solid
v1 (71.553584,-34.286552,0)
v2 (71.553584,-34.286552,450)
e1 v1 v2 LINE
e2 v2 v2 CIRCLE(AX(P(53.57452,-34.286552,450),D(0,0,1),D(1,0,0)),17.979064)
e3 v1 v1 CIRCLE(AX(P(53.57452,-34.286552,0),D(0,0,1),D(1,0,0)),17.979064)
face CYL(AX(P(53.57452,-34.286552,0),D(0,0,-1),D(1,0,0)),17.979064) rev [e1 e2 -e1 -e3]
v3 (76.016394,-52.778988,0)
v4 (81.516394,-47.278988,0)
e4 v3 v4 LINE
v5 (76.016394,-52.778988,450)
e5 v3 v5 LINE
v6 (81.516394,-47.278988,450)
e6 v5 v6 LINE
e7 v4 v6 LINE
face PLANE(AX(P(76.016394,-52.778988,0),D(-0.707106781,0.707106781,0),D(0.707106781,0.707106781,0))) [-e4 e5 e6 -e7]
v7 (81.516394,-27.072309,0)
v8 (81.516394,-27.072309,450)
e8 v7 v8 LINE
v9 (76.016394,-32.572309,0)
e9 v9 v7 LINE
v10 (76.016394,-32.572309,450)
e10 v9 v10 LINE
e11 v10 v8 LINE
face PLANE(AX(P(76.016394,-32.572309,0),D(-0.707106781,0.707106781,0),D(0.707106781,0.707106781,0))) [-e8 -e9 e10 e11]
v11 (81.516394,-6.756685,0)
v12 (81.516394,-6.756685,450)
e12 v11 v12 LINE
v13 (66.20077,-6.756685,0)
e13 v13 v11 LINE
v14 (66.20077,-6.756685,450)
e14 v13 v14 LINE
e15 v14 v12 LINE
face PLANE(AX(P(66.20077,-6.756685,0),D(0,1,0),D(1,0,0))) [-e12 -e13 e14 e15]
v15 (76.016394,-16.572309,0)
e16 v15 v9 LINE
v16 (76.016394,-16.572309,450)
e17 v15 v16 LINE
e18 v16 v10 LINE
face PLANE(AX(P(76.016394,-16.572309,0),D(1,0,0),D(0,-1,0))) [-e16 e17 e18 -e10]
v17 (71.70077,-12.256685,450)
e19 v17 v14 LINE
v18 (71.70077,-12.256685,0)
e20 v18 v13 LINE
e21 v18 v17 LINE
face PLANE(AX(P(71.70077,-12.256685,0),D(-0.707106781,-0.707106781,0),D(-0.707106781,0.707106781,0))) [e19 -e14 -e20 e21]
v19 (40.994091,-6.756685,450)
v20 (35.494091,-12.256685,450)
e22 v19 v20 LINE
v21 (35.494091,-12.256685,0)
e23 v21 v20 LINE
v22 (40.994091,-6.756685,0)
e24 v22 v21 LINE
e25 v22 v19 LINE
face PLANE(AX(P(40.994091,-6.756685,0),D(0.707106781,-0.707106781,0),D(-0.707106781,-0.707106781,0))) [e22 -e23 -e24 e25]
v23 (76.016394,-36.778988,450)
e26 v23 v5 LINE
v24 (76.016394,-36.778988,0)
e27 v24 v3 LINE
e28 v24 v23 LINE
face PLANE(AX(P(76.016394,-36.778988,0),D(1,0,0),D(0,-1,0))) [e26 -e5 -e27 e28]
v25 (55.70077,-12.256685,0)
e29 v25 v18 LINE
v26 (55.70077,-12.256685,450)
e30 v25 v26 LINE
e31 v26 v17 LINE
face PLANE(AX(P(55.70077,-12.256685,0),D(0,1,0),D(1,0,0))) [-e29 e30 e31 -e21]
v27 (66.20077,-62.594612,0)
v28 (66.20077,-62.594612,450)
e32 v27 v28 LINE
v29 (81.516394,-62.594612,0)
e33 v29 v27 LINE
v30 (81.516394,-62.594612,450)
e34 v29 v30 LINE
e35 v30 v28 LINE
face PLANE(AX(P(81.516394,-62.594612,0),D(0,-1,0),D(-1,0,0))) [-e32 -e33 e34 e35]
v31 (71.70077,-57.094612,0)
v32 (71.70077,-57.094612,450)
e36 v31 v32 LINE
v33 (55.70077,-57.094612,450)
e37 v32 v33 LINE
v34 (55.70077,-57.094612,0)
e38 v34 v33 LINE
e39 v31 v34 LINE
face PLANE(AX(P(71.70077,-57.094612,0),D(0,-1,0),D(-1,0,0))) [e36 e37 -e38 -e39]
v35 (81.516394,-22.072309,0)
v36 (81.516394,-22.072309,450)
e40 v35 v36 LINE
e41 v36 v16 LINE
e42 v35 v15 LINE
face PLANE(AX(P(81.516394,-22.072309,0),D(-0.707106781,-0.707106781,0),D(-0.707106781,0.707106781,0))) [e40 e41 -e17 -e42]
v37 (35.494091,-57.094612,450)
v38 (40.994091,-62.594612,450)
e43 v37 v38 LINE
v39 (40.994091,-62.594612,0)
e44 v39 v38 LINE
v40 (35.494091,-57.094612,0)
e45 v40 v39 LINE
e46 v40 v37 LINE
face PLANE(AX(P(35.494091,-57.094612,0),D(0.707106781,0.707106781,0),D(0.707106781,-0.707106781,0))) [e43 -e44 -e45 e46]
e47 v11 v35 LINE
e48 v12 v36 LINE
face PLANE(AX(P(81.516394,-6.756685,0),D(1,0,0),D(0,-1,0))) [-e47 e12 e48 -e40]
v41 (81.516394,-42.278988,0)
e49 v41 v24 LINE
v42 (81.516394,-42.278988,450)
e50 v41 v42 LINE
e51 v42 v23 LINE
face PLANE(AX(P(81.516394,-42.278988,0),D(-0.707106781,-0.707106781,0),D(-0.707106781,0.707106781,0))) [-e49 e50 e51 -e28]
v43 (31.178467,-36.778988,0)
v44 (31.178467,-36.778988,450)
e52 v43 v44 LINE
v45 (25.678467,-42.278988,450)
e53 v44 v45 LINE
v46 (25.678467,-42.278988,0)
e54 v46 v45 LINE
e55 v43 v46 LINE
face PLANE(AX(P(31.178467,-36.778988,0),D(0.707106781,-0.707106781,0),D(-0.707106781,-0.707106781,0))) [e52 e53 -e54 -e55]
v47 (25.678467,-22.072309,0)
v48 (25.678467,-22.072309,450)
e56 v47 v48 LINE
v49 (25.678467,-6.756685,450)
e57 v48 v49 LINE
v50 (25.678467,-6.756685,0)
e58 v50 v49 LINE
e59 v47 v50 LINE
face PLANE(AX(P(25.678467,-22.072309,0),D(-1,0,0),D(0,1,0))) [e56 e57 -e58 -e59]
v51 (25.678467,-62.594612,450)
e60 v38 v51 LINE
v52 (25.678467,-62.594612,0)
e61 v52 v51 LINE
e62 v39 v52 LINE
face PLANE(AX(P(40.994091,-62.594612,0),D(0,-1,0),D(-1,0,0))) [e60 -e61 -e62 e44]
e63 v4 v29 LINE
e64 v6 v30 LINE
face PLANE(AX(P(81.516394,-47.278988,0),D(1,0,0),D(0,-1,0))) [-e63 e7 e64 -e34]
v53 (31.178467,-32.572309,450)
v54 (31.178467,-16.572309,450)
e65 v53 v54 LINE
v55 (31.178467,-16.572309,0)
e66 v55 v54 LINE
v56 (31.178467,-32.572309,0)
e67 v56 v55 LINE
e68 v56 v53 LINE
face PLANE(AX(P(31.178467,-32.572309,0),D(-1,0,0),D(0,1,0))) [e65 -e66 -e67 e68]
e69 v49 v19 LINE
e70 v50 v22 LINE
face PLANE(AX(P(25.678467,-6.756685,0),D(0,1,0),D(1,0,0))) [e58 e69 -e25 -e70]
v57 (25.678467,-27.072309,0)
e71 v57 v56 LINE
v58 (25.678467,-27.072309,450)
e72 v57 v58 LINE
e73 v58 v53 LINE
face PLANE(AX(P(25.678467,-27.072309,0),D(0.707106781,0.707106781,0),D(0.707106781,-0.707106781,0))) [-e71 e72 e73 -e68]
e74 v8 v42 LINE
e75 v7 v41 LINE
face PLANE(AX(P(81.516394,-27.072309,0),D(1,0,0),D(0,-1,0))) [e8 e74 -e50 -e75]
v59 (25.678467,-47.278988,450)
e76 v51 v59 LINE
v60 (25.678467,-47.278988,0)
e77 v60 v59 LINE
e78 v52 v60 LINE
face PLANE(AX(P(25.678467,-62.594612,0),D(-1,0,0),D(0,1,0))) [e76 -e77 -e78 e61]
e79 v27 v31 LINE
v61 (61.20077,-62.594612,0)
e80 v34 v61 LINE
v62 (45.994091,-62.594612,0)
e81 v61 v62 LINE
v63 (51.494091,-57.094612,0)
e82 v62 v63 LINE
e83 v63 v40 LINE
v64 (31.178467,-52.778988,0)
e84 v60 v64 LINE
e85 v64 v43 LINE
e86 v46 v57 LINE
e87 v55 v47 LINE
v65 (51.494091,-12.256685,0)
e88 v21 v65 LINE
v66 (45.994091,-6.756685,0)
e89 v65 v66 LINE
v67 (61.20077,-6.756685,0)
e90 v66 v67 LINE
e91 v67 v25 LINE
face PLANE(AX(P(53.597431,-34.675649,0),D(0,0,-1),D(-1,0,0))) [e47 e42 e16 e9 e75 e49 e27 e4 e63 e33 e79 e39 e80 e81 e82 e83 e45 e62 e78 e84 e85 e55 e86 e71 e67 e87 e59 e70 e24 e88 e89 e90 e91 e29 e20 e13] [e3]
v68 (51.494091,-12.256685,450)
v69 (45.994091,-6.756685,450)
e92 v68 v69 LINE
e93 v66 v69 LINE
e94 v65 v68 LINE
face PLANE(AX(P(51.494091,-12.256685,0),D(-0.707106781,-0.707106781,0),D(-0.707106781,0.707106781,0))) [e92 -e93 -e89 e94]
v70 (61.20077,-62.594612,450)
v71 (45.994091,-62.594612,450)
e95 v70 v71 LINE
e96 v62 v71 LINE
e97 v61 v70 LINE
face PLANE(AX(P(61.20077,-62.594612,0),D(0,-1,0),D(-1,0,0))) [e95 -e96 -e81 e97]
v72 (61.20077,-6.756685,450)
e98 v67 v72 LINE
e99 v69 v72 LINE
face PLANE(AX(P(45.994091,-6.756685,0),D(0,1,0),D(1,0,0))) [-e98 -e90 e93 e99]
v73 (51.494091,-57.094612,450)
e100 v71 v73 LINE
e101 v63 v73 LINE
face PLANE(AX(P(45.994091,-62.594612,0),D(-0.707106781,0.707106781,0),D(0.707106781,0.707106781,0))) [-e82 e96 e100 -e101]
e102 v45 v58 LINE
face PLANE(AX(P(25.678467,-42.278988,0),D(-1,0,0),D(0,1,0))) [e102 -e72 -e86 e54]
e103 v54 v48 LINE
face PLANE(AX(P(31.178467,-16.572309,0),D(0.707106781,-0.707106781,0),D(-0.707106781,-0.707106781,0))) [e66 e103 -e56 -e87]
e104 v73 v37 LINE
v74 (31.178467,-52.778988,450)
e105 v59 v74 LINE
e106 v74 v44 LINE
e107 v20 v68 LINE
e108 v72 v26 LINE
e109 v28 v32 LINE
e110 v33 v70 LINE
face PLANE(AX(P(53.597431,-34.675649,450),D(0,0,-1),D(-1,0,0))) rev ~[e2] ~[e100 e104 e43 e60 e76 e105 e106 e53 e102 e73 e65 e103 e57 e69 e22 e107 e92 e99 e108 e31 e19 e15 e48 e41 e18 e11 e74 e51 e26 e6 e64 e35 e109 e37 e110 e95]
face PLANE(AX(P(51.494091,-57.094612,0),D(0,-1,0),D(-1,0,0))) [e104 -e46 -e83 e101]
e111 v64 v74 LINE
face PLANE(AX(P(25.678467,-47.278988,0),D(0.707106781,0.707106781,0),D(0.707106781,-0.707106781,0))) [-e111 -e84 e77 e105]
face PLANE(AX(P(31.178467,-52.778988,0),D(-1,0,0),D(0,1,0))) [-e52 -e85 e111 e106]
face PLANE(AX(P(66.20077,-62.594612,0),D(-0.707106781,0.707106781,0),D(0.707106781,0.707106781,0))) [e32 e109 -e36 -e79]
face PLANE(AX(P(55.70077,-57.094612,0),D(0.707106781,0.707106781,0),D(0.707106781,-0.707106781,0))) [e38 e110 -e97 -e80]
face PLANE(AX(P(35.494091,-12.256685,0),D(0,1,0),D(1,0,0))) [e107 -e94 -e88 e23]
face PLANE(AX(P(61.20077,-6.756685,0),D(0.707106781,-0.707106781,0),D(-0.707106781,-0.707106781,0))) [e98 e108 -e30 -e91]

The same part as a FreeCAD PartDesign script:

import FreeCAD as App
import Part
import Sketcher
from FreeCAD import Vector

doc = App.newDocument("Part")
body = doc.addObject("PartDesign::Body", "Body")

# Sketch on XY plane
sketch1 = doc.addObject("Sketcher::SketchObject", "Sketch")
body.addObject(sketch1)
sketch1.AttachmentSupport = (doc.XY_Plane, [""])
sketch1.MapMode = "FlatFace"
sketch1.addGeometry(Part.LineSegment(Vector(82, -63, 0), Vector(82, -47, 0)), False)
sketch1.addGeometry(Part.LineSegment(Vector(82, -47, 0), Vector(76, -53, 0)), False)
sketch1.addGeometry(Part.LineSegment(Vector(76, -53, 0), Vector(76, -37, 0)), False)
sketch1.addGeometry(Part.LineSegment(Vector(76, -37, 0), Vector(82, -42, 0)), False)
sketch1.addGeometry(Part.LineSegment(Vector(82, -42, 0), Vector(82, -27, 0)), False)
sketch1.addGeometry(Part.LineSegment(Vector(82, -27, 0), Vector(76, -33, 0)), False)
sketch1.addGeometry(Part.LineSegment(Vector(76, -33, 0), Vector(76, -17, 0)), False)
sketch1.addGeometry(Part.LineSegment(Vector(76, -17, 0), Vector(82, -22, 0)), False)
sketch1.addGeometry(Part.LineSegment(Vector(82, -22, 0), Vector(82, -7, 0)), False)
sketch1.addGeometry(Part.LineSegment(Vector(82, -7, 0), Vector(66, -7, 0)), False)
sketch1.addGeometry(Part.LineSegment(Vector(66, -7, 0), Vector(72, -12, 0)), False)
sketch1.addGeometry(Part.LineSegment(Vector(72, -12, 0), Vector(56, -12, 0)), False)
sketch1.addGeometry(Part.LineSegment(Vector(56, -12, 0), Vector(61, -7, 0)), False)
sketch1.addGeometry(Part.LineSegment(Vector(61, -7, 0), Vector(46, -7, 0)), False)
sketch1.addGeometry(Part.LineSegment(Vector(46, -7, 0), Vector(51, -12, 0)), False)
sketch1.addGeometry(Part.LineSegment(Vector(51, -12, 0), Vector(35, -12, 0)), False)
sketch1.addGeometry(Part.LineSegment(Vector(35, -12, 0), Vector(41, -7, 0)), False)
sketch1.addGeometry(Part.LineSegment(Vector(41, -7, 0), Vector(26, -7, 0)), False)
sketch1.addGeometry(Part.LineSegment(Vector(26, -7, 0), Vector(26, -22, 0)), False)
sketch1.addGeometry(Part.LineSegment(Vector(26, -22, 0), Vector(31, -17, 0)), False)
sketch1.addGeometry(Part.LineSegment(Vector(31, -17, 0), Vector(31, -33, 0)), False)
sketch1.addGeometry(Part.LineSegment(Vector(31, -33, 0), Vector(26, -27, 0)), False)
sketch1.addGeometry(Part.LineSegment(Vector(26, -27, 0), Vector(26, -42, 0)), False)
sketch1.addGeometry(Part.LineSegment(Vector(26, -42, 0), Vector(31, -37, 0)), False)
sketch1.addGeometry(Part.LineSegment(Vector(31, -37, 0), Vector(31, -53, 0)), False)
sketch1.addGeometry(Part.LineSegment(Vector(31, -53, 0), Vector(26, -47, 0)), False)
sketch1.addGeometry(Part.LineSegment(Vector(26, -47, 0), Vector(26, -63, 0)), False)
sketch1.addGeometry(Part.LineSegment(Vector(26, -63, 0), Vector(41, -63, 0)), False)
sketch1.addGeometry(Part.LineSegment(Vector(41, -63, 0), Vector(35, -57, 0)), False)
sketch1.addGeometry(Part.LineSegment(Vector(35, -57, 0), Vector(51, -57, 0)), False)
sketch1.addGeometry(Part.LineSegment(Vector(51, -57, 0), Vector(46, -63, 0)), False)
sketch1.addGeometry(Part.LineSegment(Vector(46, -63, 0), Vector(61, -63, 0)), False)
sketch1.addGeometry(Part.LineSegment(Vector(61, -63, 0), Vector(56, -57, 0)), False)
sketch1.addGeometry(Part.LineSegment(Vector(56, -57, 0), Vector(72, -57, 0)), False)
sketch1.addGeometry(Part.LineSegment(Vector(72, -57, 0), Vector(66, -63, 0)), False)
sketch1.addGeometry(Part.LineSegment(Vector(66, -63, 0), Vector(82, -63, 0)), False)
sketch1.addGeometry(Part.Circle(Vector(54, -34, 0), Vector(0, 0, 1), 18), False)
sketch1.addConstraint(Sketcher.Constraint("Coincident", 0, 2, 1, 1))
sketch1.addConstraint(Sketcher.Constraint("Coincident", 1, 2, 2, 1))
sketch1.addConstraint(Sketcher.Constraint("Coincident", 2, 2, 3, 1))
sketch1.addConstraint(Sketcher.Constraint("Coincident", 3, 2, 4, 1))
sketch1.addConstraint(Sketcher.Constraint("Coincident", 4, 2, 5, 1))
sketch1.addConstraint(Sketcher.Constraint("Coincident", 5, 2, 6, 1))
sketch1.addConstraint(Sketcher.Constraint("Coincident", 6, 2, 7, 1))
sketch1.addConstraint(Sketcher.Constraint("Coincident", 7, 2, 8, 1))
sketch1.addConstraint(Sketcher.Constraint("Coincident", 8, 2, 9, 1))
sketch1.addConstraint(Sketcher.Constraint("Coincident", 9, 2, 10, 1))
sketch1.addConstraint(Sketcher.Constraint("Coincident", 10, 2, 11, 1))
sketch1.addConstraint(Sketcher.Constraint("Coincident", 11, 2, 12, 1))
sketch1.addConstraint(Sketcher.Constraint("Coincident", 12, 2, 13, 1))
sketch1.addConstraint(Sketcher.Constraint("Coincident", 13, 2, 14, 1))
sketch1.addConstraint(Sketcher.Constraint("Coincident", 14, 2, 15, 1))
sketch1.addConstraint(Sketcher.Constraint("Coincident", 15, 2, 16, 1))
sketch1.addConstraint(Sketcher.Constraint("Coincident", 16, 2, 17, 1))
sketch1.addConstraint(Sketcher.Constraint("Coincident", 17, 2, 18, 1))
sketch1.addConstraint(Sketcher.Constraint("Coincident", 18, 2, 19, 1))
sketch1.addConstraint(Sketcher.Constraint("Coincident", 19, 2, 20, 1))
sketch1.addConstraint(Sketcher.Constraint("Coincident", 20, 2, 21, 1))
sketch1.addConstraint(Sketcher.Constraint("Coincident", 21, 2, 22, 1))
sketch1.addConstraint(Sketcher.Constraint("Coincident", 22, 2, 23, 1))
sketch1.addConstraint(Sketcher.Constraint("Coincident", 23, 2, 24, 1))
sketch1.addConstraint(Sketcher.Constraint("Coincident", 24, 2, 25, 1))
sketch1.addConstraint(Sketcher.Constraint("Coincident", 25, 2, 26, 1))
sketch1.addConstraint(Sketcher.Constraint("Coincident", 26, 2, 27, 1))
sketch1.addConstraint(Sketcher.Constraint("Coincident", 27, 2, 28, 1))
sketch1.addConstraint(Sketcher.Constraint("Coincident", 28, 2, 29, 1))
sketch1.addConstraint(Sketcher.Constraint("Coincident", 29, 2, 30, 1))
sketch1.addConstraint(Sketcher.Constraint("Coincident", 30, 2, 31, 1))
sketch1.addConstraint(Sketcher.Constraint("Coincident", 31, 2, 32, 1))
sketch1.addConstraint(Sketcher.Constraint("Coincident", 32, 2, 33, 1))
sketch1.addConstraint(Sketcher.Constraint("Coincident", 33, 2, 34, 1))
sketch1.addConstraint(Sketcher.Constraint("Coincident", 34, 2, 35, 1))
sketch1.addConstraint(Sketcher.Constraint("Coincident", 35, 2, 0, 1))
sketch1.addConstraint(Sketcher.Constraint("Vertical", 0))
sketch1.addConstraint(Sketcher.Constraint("Vertical", 2))
sketch1.addConstraint(Sketcher.Constraint("Vertical", 4))
sketch1.addConstraint(Sketcher.Constraint("Vertical", 6))
sketch1.addConstraint(Sketcher.Constraint("Vertical", 8))
sketch1.addConstraint(Sketcher.Constraint("Horizontal", 9))
sketch1.addConstraint(Sketcher.Constraint("Horizontal", 11))
sketch1.addConstraint(Sketcher.Constraint("Horizontal", 13))
sketch1.addConstraint(Sketcher.Constraint("Horizontal", 15))
sketch1.addConstraint(Sketcher.Constraint("Horizontal", 17))
sketch1.addConstraint(Sketcher.Constraint("Vertical", 18))
sketch1.addConstraint(Sketcher.Constraint("Vertical", 20))
sketch1.addConstraint(Sketcher.Constraint("Vertical", 22))
sketch1.addConstraint(Sketcher.Constraint("Vertical", 24))
sketch1.addConstraint(Sketcher.Constraint("Vertical", 26))
sketch1.addConstraint(Sketcher.Constraint("Horizontal", 27))
sketch1.addConstraint(Sketcher.Constraint("Horizontal", 29))
sketch1.addConstraint(Sketcher.Constraint("Horizontal", 31))
sketch1.addConstraint(Sketcher.Constraint("Horizontal", 33))
sketch1.addConstraint(Sketcher.Constraint("Horizontal", 35))
sketch1.addConstraint(Sketcher.Constraint("Perpendicular", 1, 3))
sketch1.addConstraint(Sketcher.Constraint("Perpendicular", 3, 5))
sketch1.addConstraint(Sketcher.Constraint("Perpendicular", 5, 7))
sketch1.addConstraint(Sketcher.Constraint("Parallel", 7, 10))
sketch1.addConstraint(Sketcher.Constraint("Perpendicular", 10, 12))
sketch1.addConstraint(Sketcher.Constraint("Perpendicular", 12, 14))
sketch1.addConstraint(Sketcher.Constraint("Perpendicular", 14, 16))
sketch1.addConstraint(Sketcher.Constraint("Parallel", 16, 19))
sketch1.addConstraint(Sketcher.Constraint("Perpendicular", 19, 21))
sketch1.addConstraint(Sketcher.Constraint("Perpendicular", 21, 23))
sketch1.addConstraint(Sketcher.Constraint("Perpendicular", 23, 25))
sketch1.addConstraint(Sketcher.Constraint("Parallel", 25, 28))
sketch1.addConstraint(Sketcher.Constraint("Perpendicular", 28, 30))
sketch1.addConstraint(Sketcher.Constraint("Perpendicular", 30, 32))
sketch1.addConstraint(Sketcher.Constraint("Perpendicular", 32, 34))
sketch1.addConstraint(Sketcher.Constraint("Horizontal", 9, 2, 12, 2))
sketch1.addConstraint(Sketcher.Constraint("Horizontal", 11, 2, 14, 2))
sketch1.addConstraint(Sketcher.Constraint("Horizontal", 13, 2, 16, 2))
sketch1.addConstraint(Sketcher.Constraint("Horizontal", 7, 2, 18, 2))
sketch1.addConstraint(Sketcher.Constraint("Horizontal", 6, 2, 19, 2))
sketch1.addConstraint(Sketcher.Constraint("Horizontal", 5, 2, 20, 2))
sketch1.addConstraint(Sketcher.Constraint("Horizontal", 4, 2, 21, 2))
sketch1.addConstraint(Sketcher.Constraint("Horizontal", 3, 2, 22, 2))
sketch1.addConstraint(Sketcher.Constraint("Horizontal", 2, 2, 23, 2))
sketch1.addConstraint(Sketcher.Constraint("Horizontal", 1, 2, 24, 2))
sketch1.addConstraint(Sketcher.Constraint("Horizontal", 0, 2, 25, 2))
sketch1.addConstraint(Sketcher.Constraint("Horizontal", 27, 2, 30, 2))
sketch1.addConstraint(Sketcher.Constraint("Horizontal", 29, 2, 32, 2))
sketch1.addConstraint(Sketcher.Constraint("Horizontal", 31, 2, 34, 2))
sketch1.addConstraint(Sketcher.Constraint("Vertical", 0, 2, 3, 2))
sketch1.addConstraint(Sketcher.Constraint("Vertical", 2, 2, 5, 2))
sketch1.addConstraint(Sketcher.Constraint("Vertical", 4, 2, 7, 2))
sketch1.addConstraint(Sketcher.Constraint("Vertical", 18, 2, 21, 2))
sketch1.addConstraint(Sketcher.Constraint("Vertical", 16, 2, 27, 2))
sketch1.addConstraint(Sketcher.Constraint("Vertical", 15, 2, 28, 2))
sketch1.addConstraint(Sketcher.Constraint("Vertical", 14, 2, 29, 2))
sketch1.addConstraint(Sketcher.Constraint("Vertical", 12, 2, 31, 2))
sketch1.addConstraint(Sketcher.Constraint("Vertical", 10, 2, 33, 2))
sketch1.addConstraint(Sketcher.Constraint("Equal", 11, 15))
sketch1.addConstraint(Sketcher.Constraint("Equal", 9, 17))
sketch1.addConstraint(Sketcher.Constraint("Equal", 35, 0))
sketch1.addConstraint(Sketcher.Constraint("Equal", 33, 2))
sketch1.addConstraint(Sketcher.Constraint("Equal", 31, 4))
sketch1.addConstraint(Sketcher.Constraint("Equal", 2, 6))
sketch1.addConstraint(Sketcher.Constraint("Equal", 0, 8))
sketch1.addConstraint(Sketcher.Constraint("Equal", 7, 10))
sketch1.addConstraint(Sketcher.Constraint("DistanceX", 11, 2, 11, 1, 16.0))
sketch1.addConstraint(Sketcher.Constraint("DistanceY", 0, 2, 3, 2, 5.0))
sketch1.addConstraint(Sketcher.Constraint("Diameter", 36, 35.958128))
sketch1.addConstraint(Sketcher.Constraint("DistanceX", 13, 2, 13, 1, 15.206679))
sketch1.addConstraint(Sketcher.Constraint("DistanceX", 9, 2, 9, 1, 15.315624))
sketch1.addConstraint(Sketcher.Constraint("DistanceX", -1, 1, 36, 3, 53.57452))
sketch1.addConstraint(Sketcher.Constraint("DistanceY", 4, 2, -1, 1, 27.072309))
sketch1.addConstraint(Sketcher.Constraint("DistanceX", -1, 1, 9, 2, 66.20077))
sketch1.addConstraint(Sketcher.Constraint("DistanceY", 29, 2, 36, 3, 22.80806))
pad1 = doc.addObject("PartDesign::Pad", "Pad")
body.addObject(pad1)
pad1.Profile = sketch1
pad1.Length = 450

doc.recompute()
